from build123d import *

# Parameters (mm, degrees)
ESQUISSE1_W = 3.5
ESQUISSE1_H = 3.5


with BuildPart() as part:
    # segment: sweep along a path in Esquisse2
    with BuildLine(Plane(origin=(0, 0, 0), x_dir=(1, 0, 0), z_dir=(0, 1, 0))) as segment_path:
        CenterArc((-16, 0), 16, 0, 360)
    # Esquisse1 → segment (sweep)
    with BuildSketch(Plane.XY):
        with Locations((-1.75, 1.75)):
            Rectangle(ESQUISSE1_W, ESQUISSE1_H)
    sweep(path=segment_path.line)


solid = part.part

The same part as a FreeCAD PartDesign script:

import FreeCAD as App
import Part
import Sketcher
Q = App.Units.Quantity

doc = App.newDocument("Part")
body = doc.addObject("PartDesign::Body", "Body")

# Sketch on XY plane
sketch1 = body.newObject("Sketcher::SketchObject", "Sketch")
sketch1.AttachmentSupport = (doc.getObject("XY_Plane"), [""])
sketch1.MapMode = "FlatFace"
sketch1.addGeometry([
    Part.LineSegment(App.Vector(-3.5, 3.5, 0), App.Vector(-3.5, 0, 0)),
    Part.LineSegment(App.Vector(-3.5, 0, 0), App.Vector(0, 0, 0)),
    Part.LineSegment(App.Vector(0, 0, 0), App.Vector(0, 3.5, 0)),
    Part.LineSegment(App.Vector(0, 3.5, 0), App.Vector(-3.5, 3.5, 0)),
], False)
sketch1.addConstraint([
    Sketcher.Constraint("Coincident", 0, 2, 1, 1),
    Sketcher.Constraint("Coincident", 1, 2, 2, 1),
    Sketcher.Constraint("Coincident", 2, 2, 3, 1),
    Sketcher.Constraint("Coincident", 3, 2, 0, 1),
    Sketcher.Constraint("Vertical", 0),
    Sketcher.Constraint("Horizontal", 1),
    Sketcher.Constraint("Vertical", 2),
    Sketcher.Constraint("Horizontal", 3),
    Sketcher.Constraint("Coincident", 1, 2, -1, 1),
    Sketcher.Constraint("Equal", 3, 0),
    Sketcher.Constraint("DistanceX", 1, 1, 1, 2, Q("3.5 mm")),
])

# Sketch on XZ plane
sketch2 = body.newObject("Sketcher::SketchObject", "Sketch001")
sketch2.AttachmentSupport = (doc.getObject("XZ_Plane"), [""])
sketch2.MapMode = "FlatFace"
sketch2.addGeometry(Part.Circle(App.Vector(-16, 0, 0), App.Vector(0, 0, 1), 16), False)
sketch2.addConstraint([
    Sketcher.Constraint("PointOnObject", 0, 3, -1),
    Sketcher.Constraint("Diameter", 0, Q("32 mm")),
    Sketcher.Constraint("DistanceX", 0, 3, -1, 1, Q("16 mm")),
])
doc.recompute()

additivepipe = body.newObject("PartDesign::AdditivePipe", "AdditivePipe")
additivepipe.Profile = sketch1
additivepipe.Spine = (sketch2, ["Edge1"])

doc.recompute()
